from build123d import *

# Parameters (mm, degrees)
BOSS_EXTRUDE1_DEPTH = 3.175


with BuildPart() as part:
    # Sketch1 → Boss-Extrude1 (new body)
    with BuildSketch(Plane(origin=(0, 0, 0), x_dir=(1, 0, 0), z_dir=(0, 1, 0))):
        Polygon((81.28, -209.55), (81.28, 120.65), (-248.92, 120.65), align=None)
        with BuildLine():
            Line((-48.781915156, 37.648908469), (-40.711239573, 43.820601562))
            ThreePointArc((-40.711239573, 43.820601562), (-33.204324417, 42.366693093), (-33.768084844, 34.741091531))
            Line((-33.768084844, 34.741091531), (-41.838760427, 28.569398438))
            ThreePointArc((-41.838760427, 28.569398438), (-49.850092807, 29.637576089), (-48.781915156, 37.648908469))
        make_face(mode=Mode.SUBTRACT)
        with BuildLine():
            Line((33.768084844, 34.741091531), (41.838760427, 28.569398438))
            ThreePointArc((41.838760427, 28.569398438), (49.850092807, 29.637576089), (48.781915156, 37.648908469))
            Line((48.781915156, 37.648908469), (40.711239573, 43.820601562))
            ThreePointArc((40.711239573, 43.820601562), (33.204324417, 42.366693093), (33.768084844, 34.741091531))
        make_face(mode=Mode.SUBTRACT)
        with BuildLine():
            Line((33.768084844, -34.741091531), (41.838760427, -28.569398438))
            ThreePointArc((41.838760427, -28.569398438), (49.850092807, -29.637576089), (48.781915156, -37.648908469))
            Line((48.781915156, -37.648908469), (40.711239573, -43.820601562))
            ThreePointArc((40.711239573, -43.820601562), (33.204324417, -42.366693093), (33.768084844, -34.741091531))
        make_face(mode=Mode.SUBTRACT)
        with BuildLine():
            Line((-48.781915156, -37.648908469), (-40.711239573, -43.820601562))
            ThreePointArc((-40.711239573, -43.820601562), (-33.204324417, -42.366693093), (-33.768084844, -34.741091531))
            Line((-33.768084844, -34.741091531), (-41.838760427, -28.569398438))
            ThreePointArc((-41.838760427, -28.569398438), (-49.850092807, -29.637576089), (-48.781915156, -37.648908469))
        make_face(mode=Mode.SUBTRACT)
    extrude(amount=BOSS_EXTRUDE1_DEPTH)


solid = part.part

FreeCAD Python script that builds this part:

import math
import FreeCAD as App
import Part
import Sketcher

V = App.Vector
Q = App.Units.Quantity


def add_polygon(sketch, points):
    """Adds a closed chain of lines whose ends are joined by coincident constraints."""
    first, n = sketch.GeometryCount, len(points)
    for a, b in zip(points, points[1:] + points[:1]):
        sketch.addGeometry(Part.LineSegment(App.Vector(*a, 0), App.Vector(*b, 0)), False)
    for i in range(n):
        sketch.addConstraint(Sketcher.Constraint("Coincident", first + i, 2, first + (i + 1) % n, 1))

doc = App.newDocument("Part")
body = doc.addObject("PartDesign::Body", "Body")

# Sketch on XZ plane
sketch1 = body.newObject("Sketcher::SketchObject", "Sketch")
sketch1.AttachmentSupport = (doc.getObject("XZ_Plane"), [""])
sketch1.MapMode = "FlatFace"
add_polygon(sketch1, [(81, 210), (81, -121), (-249, -121)])  # lines 0-2
sketch1.addGeometry(Part.LineSegment(V(-41, 44, 0), V(-49, 38, 0)), False)  # 3
sketch1.addGeometry(Part.ArcOfCircle(Part.Circle(V(-45, 33, 0), V(0, 0, 1), 6), math.radians(127), math.radians(307)), False)  # 4
sketch1.addGeometry(Part.LineSegment(V(-42, 29, 0), V(-34, 35, 0)), False)  # 5
sketch1.addGeometry(Part.ArcOfCircle(Part.Circle(V(-38, 39, 0), V(0, 0, 1), 6), math.radians(-46), math.radians(121)), False)  # 6
sketch1.addGeometry(Part.ArcOfCircle(Part.Circle(V(38, 39, 0), V(0, 0, 1), 6), math.radians(59), math.radians(226)), False)  # 7
sketch1.addGeometry(Part.LineSegment(V(34, 35, 0), V(42, 29, 0)), False)  # 8
sketch1.addGeometry(Part.ArcOfCircle(Part.Circle(V(45, 33, 0), V(0, 0, 1), 6), math.radians(-127), math.radians(53)), False)  # 9
sketch1.addGeometry(Part.LineSegment(V(49, 38, 0), V(41, 44, 0)), False)  # 10
sketch1.addGeometry(Part.ArcOfCircle(Part.Circle(V(-45, -33, 0), V(0, 0, 1), 6), math.radians(53), math.radians(233)), False)  # 11
sketch1.addGeometry(Part.LineSegment(V(-49, -38, 0), V(-41, -44, 0)), False)  # 12
sketch1.addGeometry(Part.ArcOfCircle(Part.Circle(V(-38, -39, 0), V(0, 0, 1), 6), math.radians(-121), math.radians(46)), False)  # 13
sketch1.addGeometry(Part.LineSegment(V(-34, -35, 0), V(-42, -29, 0)), False)  # 14
sketch1.addGeometry(Part.LineSegment(V(42, -29, 0), V(34, -35, 0)), False)  # 15
sketch1.addGeometry(Part.ArcOfCircle(Part.Circle(V(38, -39, 0), V(0, 0, 1), 6), math.radians(134), math.radians(301)), False)  # 16
sketch1.addGeometry(Part.LineSegment(V(41, -44, 0), V(49, -38, 0)), False)  # 17
sketch1.addGeometry(Part.ArcOfCircle(Part.Circle(V(45, -33, 0), V(0, 0, 1), 6), math.radians(-53), math.radians(127)), False)  # 18
sketch1.addConstraint([
    Sketcher.Constraint("Tangent", 3, 2, 4, 1),
    Sketcher.Constraint("Tangent", 4, 2, 5, 1),
    Sketcher.Constraint("Coincident", 5, 2, 6, 1),
    Sketcher.Constraint("Coincident", 6, 2, 3, 1),
    Sketcher.Constraint("Coincident", 7, 2, 8, 1),
    Sketcher.Constraint("Tangent", 8, 2, 9, 1),
    Sketcher.Constraint("Tangent", 9, 2, 10, 1),
    Sketcher.Constraint("Coincident", 10, 2, 7, 1),
    Sketcher.Constraint("Tangent", 11, 2, 12, 1),
    Sketcher.Constraint("Coincident", 12, 2, 13, 1),
    Sketcher.Constraint("Coincident", 13, 2, 14, 1),
    Sketcher.Constraint("Tangent", 14, 2, 11, 1),
    Sketcher.Constraint("Coincident", 15, 2, 16, 1),
    Sketcher.Constraint("Coincident", 16, 2, 17, 1),
    Sketcher.Constraint("Tangent", 17, 2, 18, 1),
    Sketcher.Constraint("Tangent", 18, 2, 15, 1),
    Sketcher.Constraint("Vertical", 0),
    Sketcher.Constraint("Horizontal", 1),
    Sketcher.Constraint("Equal", 6, 7),
    Sketcher.Constraint("Equal", 4, 9),
    Sketcher.Constraint("Equal", 9, 11),
    Sketcher.Constraint("Equal", 7, 13),
    Sketcher.Constraint("Equal", 13, 16),
    Sketcher.Constraint("Equal", 11, 18),
    Sketcher.Constraint("Symmetric", 9, 3, 11, 3, -1, 1),
    Sketcher.Constraint("Symmetric", 7, 3, 13, 3, -1, 1),
    Sketcher.Constraint("Symmetric", 6, 3, 16, 3, -1, 1),
    Sketcher.Constraint("Symmetric", 4, 3, 18, 3, -1, 1),
    Sketcher.Constraint("Symmetric", 6, 3, 7, 3, -2),
    Sketcher.Constraint("Symmetric", 4, 3, 9, 3, -2),
    Sketcher.Constraint("Parallel", 3, 5),
    Sketcher.Constraint("Parallel", 8, 10),
    Sketcher.Constraint("Parallel", 10, 12),
    Sketcher.Constraint("Parallel", 12, 14),
    Sketcher.Constraint("Parallel", 5, 15),
    Sketcher.Constraint("Parallel", 15, 17),
    Sketcher.Constraint("Horizontal", 5, 2, 7, 2),
    Sketcher.Constraint("Equal", 1, 0),
    Sketcher.Constraint("Equal", 3, 5),
    Sketcher.Constraint("DistanceX", 1, 2, 1, 1, Q("13 in")),
    Sketcher.Constraint("Radius", 4, Q("0.225 in")),
    Sketcher.Constraint("Distance", 3, Q("0.4 in")),
    Sketcher.Constraint("DistanceX", -1, 1, 0, 2, Q("3.2 in")),
    Sketcher.Constraint("DistanceY", 0, 2, -1, 1, Q("4.75 in")),
    Sketcher.Constraint("DistanceY", 11, 2, 5, 2, Q("2.85 in")),
    Sketcher.Constraint("Radius", 6, 5.754688),
    Sketcher.Constraint("DistanceX", 4, 3, 7, 3, Q("3.2711001 in")),
    Sketcher.Constraint("DistanceY", -1, 1, 4, 2, 28.569398),
])
pad1 = body.newObject("PartDesign::Pad", "Pad")
pad1.Profile = sketch1
pad1.Length = Q("0.125 in")
pad1.Reversed = True

doc.recompute()
